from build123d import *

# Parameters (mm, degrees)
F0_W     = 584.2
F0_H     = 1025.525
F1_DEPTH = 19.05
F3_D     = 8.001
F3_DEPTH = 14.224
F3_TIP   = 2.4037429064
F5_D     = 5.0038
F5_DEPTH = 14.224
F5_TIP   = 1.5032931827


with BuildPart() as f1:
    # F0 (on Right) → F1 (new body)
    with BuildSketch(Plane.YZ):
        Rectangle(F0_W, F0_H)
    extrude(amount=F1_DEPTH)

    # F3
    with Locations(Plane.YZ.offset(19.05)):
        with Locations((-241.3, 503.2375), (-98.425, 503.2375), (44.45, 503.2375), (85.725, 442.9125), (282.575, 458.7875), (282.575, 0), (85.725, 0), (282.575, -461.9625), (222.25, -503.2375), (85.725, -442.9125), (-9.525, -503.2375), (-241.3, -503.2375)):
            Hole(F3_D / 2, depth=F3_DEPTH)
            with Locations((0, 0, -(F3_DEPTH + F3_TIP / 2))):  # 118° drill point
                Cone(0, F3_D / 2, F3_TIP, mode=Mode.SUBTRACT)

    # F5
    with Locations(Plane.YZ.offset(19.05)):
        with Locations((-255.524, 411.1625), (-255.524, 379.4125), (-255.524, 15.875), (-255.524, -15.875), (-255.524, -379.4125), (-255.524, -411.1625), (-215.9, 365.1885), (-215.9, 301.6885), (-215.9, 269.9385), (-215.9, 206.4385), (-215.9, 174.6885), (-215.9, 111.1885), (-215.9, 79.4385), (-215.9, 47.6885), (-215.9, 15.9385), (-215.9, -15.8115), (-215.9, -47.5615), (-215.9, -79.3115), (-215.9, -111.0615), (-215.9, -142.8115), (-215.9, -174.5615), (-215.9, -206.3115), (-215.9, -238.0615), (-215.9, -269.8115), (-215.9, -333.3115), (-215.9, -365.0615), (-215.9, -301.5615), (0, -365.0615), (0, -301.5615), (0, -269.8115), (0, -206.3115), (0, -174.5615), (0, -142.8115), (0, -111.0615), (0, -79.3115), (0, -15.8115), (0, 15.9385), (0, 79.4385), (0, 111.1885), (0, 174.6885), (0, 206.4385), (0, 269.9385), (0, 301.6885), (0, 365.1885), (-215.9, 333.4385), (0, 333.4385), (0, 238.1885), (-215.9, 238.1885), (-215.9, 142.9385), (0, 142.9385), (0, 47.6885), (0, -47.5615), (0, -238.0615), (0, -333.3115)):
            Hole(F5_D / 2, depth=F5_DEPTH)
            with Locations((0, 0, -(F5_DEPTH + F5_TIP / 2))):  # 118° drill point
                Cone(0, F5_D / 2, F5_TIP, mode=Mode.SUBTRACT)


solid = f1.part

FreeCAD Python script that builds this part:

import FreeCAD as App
import Part
import Sketcher
Q = App.Units.Quantity

doc = App.newDocument("Part")
params = doc.addObject("Spreadsheet::Sheet", "Params")
for row, (alias, value) in enumerate([
    ("sketch1_width", "23 in"),
    ("sketch1_height", "40.375 in"),
    ("pad1_length", "0.75 in"),
    ("sketch2_diameter", "0.315 in"),
    ("hole_diameter", "0.315 in"),
    ("hole_depth", "0.56 in"),
    ("sketch3_diameter", "0.197 in"),
    ("hole2_diameter", "0.197 in"),
    ("hole2_depth", "0.56 in"),
], start=1):
    params.set(f"A{row}", alias)
    params.set(f"B{row}", "=" + value)
    params.setAlias(f"B{row}", alias)

body = doc.addObject("PartDesign::Body", "Body")

# Sketch on YZ plane
sketch1 = doc.addObject("Sketcher::SketchObject", "Sketch")
body.addObject(sketch1)
sketch1.AttachmentSupport = (doc.YZ_Plane, [""])
sketch1.MapMode = "FlatFace"
sketch1.addGeometry([
    Part.LineSegment(App.Vector(-292, 513, 0), App.Vector(-292, -513, 0)),
    Part.LineSegment(App.Vector(-292, -513, 0), App.Vector(292, -513, 0)),
    Part.LineSegment(App.Vector(292, -513, 0), App.Vector(292, 513, 0)),
    Part.LineSegment(App.Vector(292, 513, 0), App.Vector(-292, 513, 0)),
], False)
sketch1.addConstraint([
    Sketcher.Constraint("Coincident", 0, 2, 1, 1),
    Sketcher.Constraint("Coincident", 1, 2, 2, 1),
    Sketcher.Constraint("Coincident", 2, 2, 3, 1),
    Sketcher.Constraint("Coincident", 3, 2, 0, 1),
    Sketcher.Constraint("Vertical", 0),
    Sketcher.Constraint("Horizontal", 1),
    Sketcher.Constraint("Vertical", 2),
    Sketcher.Constraint("Horizontal", 3),
    Sketcher.Constraint("Symmetric", 0, 2, 2, 2, -1, 1),
    Sketcher.Constraint("DistanceX", 1, 1, 1, 2, Q("23 in")),
    Sketcher.Constraint("DistanceY", 0, 2, 0, 1, Q("40.375 in")),
])
sketch1.setExpression("Constraints[9]", "Params.sketch1_width")
sketch1.setExpression("Constraints[10]", "Params.sketch1_height")
pad1 = doc.addObject("PartDesign::Pad", "Pad")
body.addObject(pad1)
pad1.Profile = sketch1
pad1.setExpression("Length", "Params.pad1_length")

# Sketch on YZ plane
sketch2 = doc.addObject("Sketcher::SketchObject", "Sketch001")
body.addObject(sketch2)
sketch2.AttachmentSupport = (doc.YZ_Plane, [""])
sketch2.MapMode = "FlatFace"
sketch2.AttachmentOffset = App.Placement(App.Vector(0, 0, 0.75 * 25.4), App.Rotation())
sketch2.addGeometry([
    Part.Circle(App.Vector(-241.3, 503.2, 0), App.Vector(0, 0, 1), 4),  # 0
    Part.Circle(App.Vector(-98.4, 503.2, 0), App.Vector(0, 0, 1), 4),  # 1
    Part.Circle(App.Vector(44.5, 503.2, 0), App.Vector(0, 0, 1), 4),  # 2
    Part.Circle(App.Vector(85.7, 442.9, 0), App.Vector(0, 0, 1), 4),  # 3
    Part.Circle(App.Vector(282.6, 458.8, 0), App.Vector(0, 0, 1), 4),  # 4
    Part.Circle(App.Vector(282.6, 0, 0), App.Vector(0, 0, 1), 4),  # 5
    Part.Circle(App.Vector(85.7, 0, 0), App.Vector(0, 0, 1), 4),  # 6
    Part.Circle(App.Vector(282.6, -462, 0), App.Vector(0, 0, 1), 4),  # 7
    Part.Circle(App.Vector(222.2, -503.2, 0), App.Vector(0, 0, 1), 4),  # 8
    Part.Circle(App.Vector(85.7, -442.9, 0), App.Vector(0, 0, 1), 4),  # 9
    Part.Circle(App.Vector(-9.5, -503.2, 0), App.Vector(0, 0, 1), 4),  # 10
    Part.Circle(App.Vector(-241.3, -503.2, 0), App.Vector(0, 0, 1), 4),  # 11
], False)
sketch2.addConstraint([
    Sketcher.Constraint("Equal", 0, 1),
    Sketcher.Constraint("Equal", 1, 2),
    Sketcher.Constraint("Equal", 2, 3),
    Sketcher.Constraint("Equal", 3, 4),
    Sketcher.Constraint("Equal", 4, 5),
    Sketcher.Constraint("Equal", 5, 6),
    Sketcher.Constraint("Equal", 6, 7),
    Sketcher.Constraint("Equal", 7, 8),
    Sketcher.Constraint("Equal", 8, 9),
    Sketcher.Constraint("Equal", 9, 10),
    Sketcher.Constraint("Equal", 10, 11),
    Sketcher.Constraint("Symmetric", 3, 3, 9, 3, -1),
    Sketcher.Constraint("Symmetric", 0, 3, 11, 3, -1),
    Sketcher.Constraint("PointOnObject", 5, 3, -1),
    Sketcher.Constraint("PointOnObject", 6, 3, -1),
    Sketcher.Constraint("Horizontal", 0, 3, 1, 3),
    Sketcher.Constraint("Horizontal", 1, 3, 2, 3),
    Sketcher.Constraint("Horizontal", 8, 3, 10, 3),
    Sketcher.Constraint("Horizontal", 10, 3, 11, 3),
    Sketcher.Constraint("Vertical", 4, 3, 5, 3),
    Sketcher.Constraint("Vertical", 3, 3, 6, 3),
    Sketcher.Constraint("Vertical", 5, 3, 7, 3),
    Sketcher.Constraint("Diameter", 0, Q("0.315 in")),
    Sketcher.Constraint("DistanceX", 1, 3, 4, 3, Q("15 in")),
    Sketcher.Constraint("DistanceY", 7, 3, 2, 3, Q("38 in")),
    Sketcher.Constraint("DistanceX", 0, 3, -1, 1, Q("9.5 in")),
    Sketcher.Constraint("DistanceX", 10, 3, 7, 3, Q("11.5 in")),
    Sketcher.Constraint("DistanceX", -1, 1, 2, 3, Q("1.75 in")),
    Sketcher.Constraint("DistanceX", -1, 1, 8, 3, Q("8.75 in")),
    Sketcher.Constraint("DistanceX", 1, 3, 3, 3, Q("7.25 in")),
    Sketcher.Constraint("DistanceY", 4, 3, 2, 3, Q("1.75 in")),
    Sketcher.Constraint("DistanceY", 8, 3, 3, 3, Q("37.25 in")),
    Sketcher.Constraint("DistanceY", -1, 1, 0, 3, Q("19.8125 in")),
    Sketcher.Constraint("DistanceX", 1, 3, -1, 1, Q("3.875 in")),
])
sketch2.setExpression("Constraints[22]", "Params.sketch2_diameter")
doc.recompute()
hole = doc.addObject("PartDesign::Hole", "Hole")
body.addObject(hole)
hole.Profile = sketch2
hole.ThreadType = "None"
hole.setExpression("Diameter", "Params.hole_diameter")
hole.DepthType = "Dimension"
hole.setExpression("Depth", "Params.hole_depth")
hole.DrillPoint = "Angled"
hole.DrillPointAngle = 118

# Sketch on YZ plane
sketch3 = doc.addObject("Sketcher::SketchObject", "Sketch002")
body.addObject(sketch3)
sketch3.AttachmentSupport = (doc.YZ_Plane, [""])
sketch3.MapMode = "FlatFace"
sketch3.AttachmentOffset = App.Placement(App.Vector(0, 0, 0.75 * 25.4), App.Rotation())
sketch3.addGeometry([
    Part.Circle(App.Vector(-255.5, 411.2, 0), App.Vector(0, 0, 1), 2.5),  # 0
    Part.Circle(App.Vector(-255.5, 379.4, 0), App.Vector(0, 0, 1), 2.5),  # 1
    Part.Circle(App.Vector(-255.5, 15.9, 0), App.Vector(0, 0, 1), 2.5),  # 2
    Part.Circle(App.Vector(-255.5, -15.9, 0), App.Vector(0, 0, 1), 2.5),  # 3
    Part.Circle(App.Vector(-255.5, -379.4, 0), App.Vector(0, 0, 1), 2.5),  # 4
    Part.Circle(App.Vector(-255.5, -411.2, 0), App.Vector(0, 0, 1), 2.5),  # 5
    Part.Circle(App.Vector(-215.9, 365.2, 0), App.Vector(0, 0, 1), 2.5),  # 6
    Part.Circle(App.Vector(-215.9, 301.7, 0), App.Vector(0, 0, 1), 2.5),  # 7
    Part.Circle(App.Vector(-215.9, 269.9, 0), App.Vector(0, 0, 1), 2.5),  # 8
    Part.Circle(App.Vector(-215.9, 206.4, 0), App.Vector(0, 0, 1), 2.5),  # 9
    Part.Circle(App.Vector(-215.9, 174.7, 0), App.Vector(0, 0, 1), 2.5),  # 10
    Part.Circle(App.Vector(-215.9, 111.2, 0), App.Vector(0, 0, 1), 2.5),  # 11
    Part.Circle(App.Vector(-215.9, 79.4, 0), App.Vector(0, 0, 1), 2.5),  # 12
    Part.Circle(App.Vector(-215.9, 47.7, 0), App.Vector(0, 0, 1), 2.5),  # 13
    Part.Circle(App.Vector(-215.9, 15.9, 0), App.Vector(0, 0, 1), 2.5),  # 14
    Part.Circle(App.Vector(-215.9, -15.8, 0), App.Vector(0, 0, 1), 2.5),  # 15
    Part.Circle(App.Vector(-215.9, -47.6, 0), App.Vector(0, 0, 1), 2.5),  # 16
    Part.Circle(App.Vector(-215.9, -79.3, 0), App.Vector(0, 0, 1), 2.5),  # 17
    Part.Circle(App.Vector(-215.9, -111.1, 0), App.Vector(0, 0, 1), 2.5),  # 18
    Part.Circle(App.Vector(-215.9, -142.8, 0), App.Vector(0, 0, 1), 2.5),  # 19
    Part.Circle(App.Vector(-215.9, -174.6, 0), App.Vector(0, 0, 1), 2.5),  # 20
    Part.Circle(App.Vector(-215.9, -206.3, 0), App.Vector(0, 0, 1), 2.5),  # 21
    Part.Circle(App.Vector(-215.9, -238.1, 0), App.Vector(0, 0, 1), 2.5),  # 22
    Part.Circle(App.Vector(-215.9, -269.8, 0), App.Vector(0, 0, 1), 2.5),  # 23
    Part.Circle(App.Vector(-215.9, -333.3, 0), App.Vector(0, 0, 1), 2.5),  # 24
    Part.Circle(App.Vector(-215.9, -365.1, 0), App.Vector(0, 0, 1), 2.5),  # 25
    Part.Circle(App.Vector(-215.9, -301.6, 0), App.Vector(0, 0, 1), 2.5),  # 26
    Part.Circle(App.Vector(0, -365.1, 0), App.Vector(0, 0, 1), 2.5),  # 27
    Part.Circle(App.Vector(0, -301.6, 0), App.Vector(0, 0, 1), 2.5),  # 28
    Part.Circle(App.Vector(0, -269.8, 0), App.Vector(0, 0, 1), 2.5),  # 29
    Part.Circle(App.Vector(0, -206.3, 0), App.Vector(0, 0, 1), 2.5),  # 30
    Part.Circle(App.Vector(0, -174.6, 0), App.Vector(0, 0, 1), 2.5),  # 31
    Part.Circle(App.Vector(0, -142.8, 0), App.Vector(0, 0, 1), 2.5),  # 32
    Part.Circle(App.Vector(0, -111.1, 0), App.Vector(0, 0, 1), 2.5),  # 33
    Part.Circle(App.Vector(0, -79.3, 0), App.Vector(0, 0, 1), 2.5),  # 34
    Part.Circle(App.Vector(0, -15.8, 0), App.Vector(0, 0, 1), 2.5),  # 35
    Part.Circle(App.Vector(0, 15.9, 0), App.Vector(0, 0, 1), 2.5),  # 36
    Part.Circle(App.Vector(0, 79.4, 0), App.Vector(0, 0, 1), 2.5),  # 37
    Part.Circle(App.Vector(0, 111.2, 0), App.Vector(0, 0, 1), 2.5),  # 38
    Part.Circle(App.Vector(0, 174.7, 0), App.Vector(0, 0, 1), 2.5),  # 39
    Part.Circle(App.Vector(0, 206.4, 0), App.Vector(0, 0, 1), 2.5),  # 40
    Part.Circle(App.Vector(0, 269.9, 0), App.Vector(0, 0, 1), 2.5),  # 41
    Part.Circle(App.Vector(0, 301.7, 0), App.Vector(0, 0, 1), 2.5),  # 42
    Part.Circle(App.Vector(0, 365.2, 0), App.Vector(0, 0, 1), 2.5),  # 43
    Part.Circle(App.Vector(-215.9, 333.4, 0), App.Vector(0, 0, 1), 2.5),  # 44
    Part.Circle(App.Vector(0, 333.4, 0), App.Vector(0, 0, 1), 2.5),  # 45
    Part.Circle(App.Vector(0, 238.2, 0), App.Vector(0, 0, 1), 2.5),  # 46
    Part.Circle(App.Vector(-215.9, 238.2, 0), App.Vector(0, 0, 1), 2.5),  # 47
    Part.Circle(App.Vector(-215.9, 142.9, 0), App.Vector(0, 0, 1), 2.5),  # 48
    Part.Circle(App.Vector(0, 142.9, 0), App.Vector(0, 0, 1), 2.5),  # 49
    Part.Circle(App.Vector(0, 47.7, 0), App.Vector(0, 0, 1), 2.5),  # 50
    Part.Circle(App.Vector(0, -47.6, 0), App.Vector(0, 0, 1), 2.5),  # 51
    Part.Circle(App.Vector(0, -238.1, 0), App.Vector(0, 0, 1), 2.5),  # 52
    Part.Circle(App.Vector(0, -333.3, 0), App.Vector(0, 0, 1), 2.5),  # 53
], False)
sketch3.addConstraint([
    Sketcher.Constraint("Equal", 0, 1),
    Sketcher.Constraint("Equal", 1, 2),
    Sketcher.Constraint("Equal", 2, 3),
    Sketcher.Constraint("Equal", 3, 4),
    Sketcher.Constraint("Equal", 4, 5),
    Sketcher.Constraint("Equal", 5, 6),
    Sketcher.Constraint("Equal", 6, 7),
    Sketcher.Constraint("Equal", 7, 8),
    Sketcher.Constraint("Equal", 8, 9),
    Sketcher.Constraint("Equal", 9, 10),
    Sketcher.Constraint("Equal", 10, 11),
    Sketcher.Constraint("Equal", 11, 12),
    Sketcher.Constraint("Equal", 12, 13),
    Sketcher.Constraint("Equal", 13, 14),
    Sketcher.Constraint("Equal", 14, 15),
    Sketcher.Constraint("Equal", 15, 16),
    Sketcher.Constraint("Equal", 16, 17),
    Sketcher.Constraint("Equal", 17, 18),
    Sketcher.Constraint("Equal", 18, 19),
    Sketcher.Constraint("Equal", 19, 20),
    Sketcher.Constraint("Equal", 20, 21),
    Sketcher.Constraint("Equal", 21, 22),
    Sketcher.Constraint("Equal", 22, 23),
    Sketcher.Constraint("Equal", 23, 24),
    Sketcher.Constraint("Equal", 24, 25),
    Sketcher.Constraint("Equal", 25, 26),
    Sketcher.Constraint("Equal", 26, 27),
    Sketcher.Constraint("Equal", 27, 28),
    Sketcher.Constraint("Equal", 28, 29),
    Sketcher.Constraint("Equal", 29, 30),
    Sketcher.Constraint("Equal", 30, 31),
    Sketcher.Constraint("Equal", 31, 32),
    Sketcher.Constraint("Equal", 32, 33),
    Sketcher.Constraint("Equal", 33, 34),
    Sketcher.Constraint("Equal", 34, 35),
    Sketcher.Constraint("Equal", 35, 36),
    Sketcher.Constraint("Equal", 36, 37),
    Sketcher.Constraint("Equal", 37, 38),
    Sketcher.Constraint("Equal", 38, 39),
    Sketcher.Constraint("Equal", 39, 40),
    Sketcher.Constraint("Equal", 40, 41),
    Sketcher.Constraint("Equal", 41, 42),
    Sketcher.Constraint("Equal", 42, 43),
    Sketcher.Constraint("Equal", 43, 44),
    Sketcher.Constraint("Equal", 44, 45),
    Sketcher.Constraint("Equal", 45, 46),
    Sketcher.Constraint("Equal", 46, 47),
    Sketcher.Constraint("Equal", 47, 48),
    Sketcher.Constraint("Equal", 48, 49),
    Sketcher.Constraint("Equal", 49, 50),
    Sketcher.Constraint("Equal", 50, 51),
    Sketcher.Constraint("Equal", 51, 52),
    Sketcher.Constraint("Equal", 52, 53),
    Sketcher.Constraint("Symmetric", 2, 3, 3, 3, -1),
    Sketcher.Constraint("Symmetric", 1, 3, 4, 3, -1),
    Sketcher.Constraint("Symmetric", 0, 3, 5, 3, -1),
    Sketcher.Constraint("PointOnObject", 27, 3, -2),
    Sketcher.Constraint("PointOnObject", 28, 3, -2),
    Sketcher.Constraint("PointOnObject", 29, 3, -2),
    Sketcher.Constraint("PointOnObject", 30, 3, -2),
    Sketcher.Constraint("PointOnObject", 31, 3, -2),
    Sketcher.Constraint("PointOnObject", 32, 3, -2),
    Sketcher.Constraint("PointOnObject", 33, 3, -2),
    Sketcher.Constraint("PointOnObject", 34, 3, -2),
    Sketcher.Constraint("PointOnObject", 35, 3, -2),
    Sketcher.Constraint("PointOnObject", 36, 3, -2),
    Sketcher.Constraint("PointOnObject", 37, 3, -2),
    Sketcher.Constraint("PointOnObject", 38, 3, -2),
    Sketcher.Constraint("PointOnObject", 39, 3, -2),
    Sketcher.Constraint("PointOnObject", 40, 3, -2),
    Sketcher.Constraint("PointOnObject", 41, 3, -2),
    Sketcher.Constraint("PointOnObject", 42, 3, -2),
    Sketcher.Constraint("PointOnObject", 43, 3, -2),
    Sketcher.Constraint("PointOnObject", 45, 3, -2),
    Sketcher.Constraint("PointOnObject", 46, 3, -2),
    Sketcher.Constraint("PointOnObject", 49, 3, -2),
    Sketcher.Constraint("PointOnObject", 50, 3, -2),
    Sketcher.Constraint("PointOnObject", 51, 3, -2),
    Sketcher.Constraint("PointOnObject", 52, 3, -2),
    Sketcher.Constraint("PointOnObject", 53, 3, -2),
    Sketcher.Constraint("Horizontal", 25, 3, 27, 3),
    Sketcher.Constraint("Horizontal", 26, 3, 28, 3),
    Sketcher.Constraint("Horizontal", 23, 3, 29, 3),
    Sketcher.Constraint("Horizontal", 21, 3, 30, 3),
    Sketcher.Constraint("Horizontal", 20, 3, 31, 3),
    Sketcher.Constraint("Horizontal", 19, 3, 32, 3),
    Sketcher.Constraint("Horizontal", 18, 3, 33, 3),
    Sketcher.Constraint("Horizontal", 17, 3, 34, 3),
    Sketcher.Constraint("Horizontal", 15, 3, 35, 3),
    Sketcher.Constraint("Horizontal", 14, 3, 36, 3),
    Sketcher.Constraint("Horizontal", 12, 3, 37, 3),
    Sketcher.Constraint("Horizontal", 11, 3, 38, 3),
    Sketcher.Constraint("Horizontal", 10, 3, 39, 3),
    Sketcher.Constraint("Horizontal", 9, 3, 40, 3),
    Sketcher.Constraint("Horizontal", 8, 3, 41, 3),
    Sketcher.Constraint("Horizontal", 7, 3, 42, 3),
    Sketcher.Constraint("Horizontal", 6, 3, 43, 3),
    Sketcher.Constraint("Horizontal", 44, 3, 45, 3),
    Sketcher.Constraint("Horizontal", 46, 3, 47, 3),
    Sketcher.Constraint("Horizontal", 48, 3, 49, 3),
    Sketcher.Constraint("Horizontal", 13, 3, 50, 3),
    Sketcher.Constraint("Horizontal", 16, 3, 51, 3),
    Sketcher.Constraint("Horizontal", 22, 3, 52, 3),
    Sketcher.Constraint("Horizontal", 24, 3, 53, 3),
    Sketcher.Constraint("Vertical", 0, 3, 1, 3),
    Sketcher.Constraint("Vertical", 1, 3, 2, 3),
    Sketcher.Constraint("Vertical", 6, 3, 7, 3),
    Sketcher.Constraint("Vertical", 7, 3, 8, 3),
    Sketcher.Constraint("Vertical", 8, 3, 9, 3),
    Sketcher.Constraint("Vertical", 9, 3, 10, 3),
    Sketcher.Constraint("Vertical", 10, 3, 11, 3),
    Sketcher.Constraint("Vertical", 11, 3, 12, 3),
    Sketcher.Constraint("Vertical", 12, 3, 13, 3),
    Sketcher.Constraint("Vertical", 13, 3, 14, 3),
    Sketcher.Constraint("Vertical", 14, 3, 15, 3),
    Sketcher.Constraint("Vertical", 15, 3, 16, 3),
    Sketcher.Constraint("Vertical", 16, 3, 17, 3),
    Sketcher.Constraint("Vertical", 17, 3, 18, 3),
    Sketcher.Constraint("Vertical", 18, 3, 19, 3),
    Sketcher.Constraint("Vertical", 19, 3, 20, 3),
    Sketcher.Constraint("Vertical", 20, 3, 21, 3),
    Sketcher.Constraint("Vertical", 21, 3, 22, 3),
    Sketcher.Constraint("Vertical", 22, 3, 23, 3),
    Sketcher.Constraint("Vertical", 23, 3, 24, 3),
    Sketcher.Constraint("Vertical", 24, 3, 25, 3),
    Sketcher.Constraint("Vertical", 25, 3, 26, 3),
    Sketcher.Constraint("Vertical", 26, 3, 44, 3),
    Sketcher.Constraint("Vertical", 44, 3, 47, 3),
    Sketcher.Constraint("Vertical", 47, 3, 48, 3),
    Sketcher.Constraint("Diameter", 0, Q("0.197 in")),
    Sketcher.Constraint("DistanceY", 10, 3, 7, 3, Q("5 in")),
    Sketcher.Constraint("DistanceY", 12, 3, 9, 3, Q("5 in")),
    Sketcher.Constraint("DistanceY", 13, 3, 10, 3, Q("5 in")),
    Sketcher.Constraint("DistanceY", 18, 3, 14, 3, Q("5 in")),
    Sketcher.Constraint("DistanceY", 19, 3, 15, 3, Q("5 in")),
    Sketcher.Constraint("DistanceY", 20, 3, 16, 3, Q("5 in")),
    Sketcher.Constraint("DistanceY", 21, 3, 17, 3, Q("5 in")),
    Sketcher.Constraint("DistanceY", 22, 3, 18, 3, Q("5 in")),
    Sketcher.Constraint("DistanceY", 23, 3, 19, 3, Q("5 in")),
    Sketcher.Constraint("DistanceY", 24, 3, 21, 3, Q("5 in")),
    Sketcher.Constraint("DistanceY", 25, 3, 22, 3, Q("5 in")),
    Sketcher.Constraint("DistanceY", 28, 3, 31, 3, Q("5 in")),
    Sketcher.Constraint("DistanceY", 35, 3, 38, 3, Q("5 in")),
    Sketcher.Constraint("DistanceY", 40, 3, 45, 3, Q("5 in")),
    Sketcher.Constraint("DistanceX", 6, 3, -1, 1, Q("8.5 in")),
    Sketcher.Constraint("DistanceY", 7, 3, 6, 3, Q("2.5 in")),
    Sketcher.Constraint("DistanceY", 9, 3, 8, 3, Q("2.5 in")),
    Sketcher.Constraint("DistanceY", 11, 3, 10, 3, Q("2.5 in")),
    Sketcher.Constraint("DistanceY", 14, 3, 12, 3, Q("2.5 in")),
    Sketcher.Constraint("DistanceY", 16, 3, 14, 3, Q("2.5 in")),
    Sketcher.Constraint("DistanceY", 17, 3, 15, 3, Q("2.5 in")),
    Sketcher.Constraint("DistanceY", 46, 3, 42, 3, Q("2.5 in")),
    Sketcher.Constraint("DistanceY", 48, 3, 9, 3, Q("2.5 in")),
    Sketcher.Constraint("DistanceX", 0, 3, -1, 1, Q("10.06 in")),
    Sketcher.Constraint("DistanceY", 1, 3, 0, 3, Q("1.25 in")),
    Sketcher.Constraint("DistanceY", 3, 3, 2, 3, Q("1.25 in")),
    Sketcher.Constraint("DistanceY", 6, 3, 1, 3, Q("0.56 in")),
    Sketcher.Constraint("DistanceY", 8, 3, 7, 3, Q("1.25 in")),
    Sketcher.Constraint("DistanceY", -1, 1, 0, 3, Q("16.1875 in")),
])
sketch3.setExpression("Constraints[129]", "Params.sketch3_diameter")
doc.recompute()
hole2 = doc.addObject("PartDesign::Hole", "Hole001")
body.addObject(hole2)
hole2.Profile = sketch3
hole2.ThreadType = "None"
hole2.setExpression("Diameter", "Params.hole2_diameter")
hole2.DepthType = "Dimension"
hole2.setExpression("Depth", "Params.hole2_depth")
hole2.DrillPoint = "Angled"
hole2.DrillPointAngle = 118

doc.recompute()
